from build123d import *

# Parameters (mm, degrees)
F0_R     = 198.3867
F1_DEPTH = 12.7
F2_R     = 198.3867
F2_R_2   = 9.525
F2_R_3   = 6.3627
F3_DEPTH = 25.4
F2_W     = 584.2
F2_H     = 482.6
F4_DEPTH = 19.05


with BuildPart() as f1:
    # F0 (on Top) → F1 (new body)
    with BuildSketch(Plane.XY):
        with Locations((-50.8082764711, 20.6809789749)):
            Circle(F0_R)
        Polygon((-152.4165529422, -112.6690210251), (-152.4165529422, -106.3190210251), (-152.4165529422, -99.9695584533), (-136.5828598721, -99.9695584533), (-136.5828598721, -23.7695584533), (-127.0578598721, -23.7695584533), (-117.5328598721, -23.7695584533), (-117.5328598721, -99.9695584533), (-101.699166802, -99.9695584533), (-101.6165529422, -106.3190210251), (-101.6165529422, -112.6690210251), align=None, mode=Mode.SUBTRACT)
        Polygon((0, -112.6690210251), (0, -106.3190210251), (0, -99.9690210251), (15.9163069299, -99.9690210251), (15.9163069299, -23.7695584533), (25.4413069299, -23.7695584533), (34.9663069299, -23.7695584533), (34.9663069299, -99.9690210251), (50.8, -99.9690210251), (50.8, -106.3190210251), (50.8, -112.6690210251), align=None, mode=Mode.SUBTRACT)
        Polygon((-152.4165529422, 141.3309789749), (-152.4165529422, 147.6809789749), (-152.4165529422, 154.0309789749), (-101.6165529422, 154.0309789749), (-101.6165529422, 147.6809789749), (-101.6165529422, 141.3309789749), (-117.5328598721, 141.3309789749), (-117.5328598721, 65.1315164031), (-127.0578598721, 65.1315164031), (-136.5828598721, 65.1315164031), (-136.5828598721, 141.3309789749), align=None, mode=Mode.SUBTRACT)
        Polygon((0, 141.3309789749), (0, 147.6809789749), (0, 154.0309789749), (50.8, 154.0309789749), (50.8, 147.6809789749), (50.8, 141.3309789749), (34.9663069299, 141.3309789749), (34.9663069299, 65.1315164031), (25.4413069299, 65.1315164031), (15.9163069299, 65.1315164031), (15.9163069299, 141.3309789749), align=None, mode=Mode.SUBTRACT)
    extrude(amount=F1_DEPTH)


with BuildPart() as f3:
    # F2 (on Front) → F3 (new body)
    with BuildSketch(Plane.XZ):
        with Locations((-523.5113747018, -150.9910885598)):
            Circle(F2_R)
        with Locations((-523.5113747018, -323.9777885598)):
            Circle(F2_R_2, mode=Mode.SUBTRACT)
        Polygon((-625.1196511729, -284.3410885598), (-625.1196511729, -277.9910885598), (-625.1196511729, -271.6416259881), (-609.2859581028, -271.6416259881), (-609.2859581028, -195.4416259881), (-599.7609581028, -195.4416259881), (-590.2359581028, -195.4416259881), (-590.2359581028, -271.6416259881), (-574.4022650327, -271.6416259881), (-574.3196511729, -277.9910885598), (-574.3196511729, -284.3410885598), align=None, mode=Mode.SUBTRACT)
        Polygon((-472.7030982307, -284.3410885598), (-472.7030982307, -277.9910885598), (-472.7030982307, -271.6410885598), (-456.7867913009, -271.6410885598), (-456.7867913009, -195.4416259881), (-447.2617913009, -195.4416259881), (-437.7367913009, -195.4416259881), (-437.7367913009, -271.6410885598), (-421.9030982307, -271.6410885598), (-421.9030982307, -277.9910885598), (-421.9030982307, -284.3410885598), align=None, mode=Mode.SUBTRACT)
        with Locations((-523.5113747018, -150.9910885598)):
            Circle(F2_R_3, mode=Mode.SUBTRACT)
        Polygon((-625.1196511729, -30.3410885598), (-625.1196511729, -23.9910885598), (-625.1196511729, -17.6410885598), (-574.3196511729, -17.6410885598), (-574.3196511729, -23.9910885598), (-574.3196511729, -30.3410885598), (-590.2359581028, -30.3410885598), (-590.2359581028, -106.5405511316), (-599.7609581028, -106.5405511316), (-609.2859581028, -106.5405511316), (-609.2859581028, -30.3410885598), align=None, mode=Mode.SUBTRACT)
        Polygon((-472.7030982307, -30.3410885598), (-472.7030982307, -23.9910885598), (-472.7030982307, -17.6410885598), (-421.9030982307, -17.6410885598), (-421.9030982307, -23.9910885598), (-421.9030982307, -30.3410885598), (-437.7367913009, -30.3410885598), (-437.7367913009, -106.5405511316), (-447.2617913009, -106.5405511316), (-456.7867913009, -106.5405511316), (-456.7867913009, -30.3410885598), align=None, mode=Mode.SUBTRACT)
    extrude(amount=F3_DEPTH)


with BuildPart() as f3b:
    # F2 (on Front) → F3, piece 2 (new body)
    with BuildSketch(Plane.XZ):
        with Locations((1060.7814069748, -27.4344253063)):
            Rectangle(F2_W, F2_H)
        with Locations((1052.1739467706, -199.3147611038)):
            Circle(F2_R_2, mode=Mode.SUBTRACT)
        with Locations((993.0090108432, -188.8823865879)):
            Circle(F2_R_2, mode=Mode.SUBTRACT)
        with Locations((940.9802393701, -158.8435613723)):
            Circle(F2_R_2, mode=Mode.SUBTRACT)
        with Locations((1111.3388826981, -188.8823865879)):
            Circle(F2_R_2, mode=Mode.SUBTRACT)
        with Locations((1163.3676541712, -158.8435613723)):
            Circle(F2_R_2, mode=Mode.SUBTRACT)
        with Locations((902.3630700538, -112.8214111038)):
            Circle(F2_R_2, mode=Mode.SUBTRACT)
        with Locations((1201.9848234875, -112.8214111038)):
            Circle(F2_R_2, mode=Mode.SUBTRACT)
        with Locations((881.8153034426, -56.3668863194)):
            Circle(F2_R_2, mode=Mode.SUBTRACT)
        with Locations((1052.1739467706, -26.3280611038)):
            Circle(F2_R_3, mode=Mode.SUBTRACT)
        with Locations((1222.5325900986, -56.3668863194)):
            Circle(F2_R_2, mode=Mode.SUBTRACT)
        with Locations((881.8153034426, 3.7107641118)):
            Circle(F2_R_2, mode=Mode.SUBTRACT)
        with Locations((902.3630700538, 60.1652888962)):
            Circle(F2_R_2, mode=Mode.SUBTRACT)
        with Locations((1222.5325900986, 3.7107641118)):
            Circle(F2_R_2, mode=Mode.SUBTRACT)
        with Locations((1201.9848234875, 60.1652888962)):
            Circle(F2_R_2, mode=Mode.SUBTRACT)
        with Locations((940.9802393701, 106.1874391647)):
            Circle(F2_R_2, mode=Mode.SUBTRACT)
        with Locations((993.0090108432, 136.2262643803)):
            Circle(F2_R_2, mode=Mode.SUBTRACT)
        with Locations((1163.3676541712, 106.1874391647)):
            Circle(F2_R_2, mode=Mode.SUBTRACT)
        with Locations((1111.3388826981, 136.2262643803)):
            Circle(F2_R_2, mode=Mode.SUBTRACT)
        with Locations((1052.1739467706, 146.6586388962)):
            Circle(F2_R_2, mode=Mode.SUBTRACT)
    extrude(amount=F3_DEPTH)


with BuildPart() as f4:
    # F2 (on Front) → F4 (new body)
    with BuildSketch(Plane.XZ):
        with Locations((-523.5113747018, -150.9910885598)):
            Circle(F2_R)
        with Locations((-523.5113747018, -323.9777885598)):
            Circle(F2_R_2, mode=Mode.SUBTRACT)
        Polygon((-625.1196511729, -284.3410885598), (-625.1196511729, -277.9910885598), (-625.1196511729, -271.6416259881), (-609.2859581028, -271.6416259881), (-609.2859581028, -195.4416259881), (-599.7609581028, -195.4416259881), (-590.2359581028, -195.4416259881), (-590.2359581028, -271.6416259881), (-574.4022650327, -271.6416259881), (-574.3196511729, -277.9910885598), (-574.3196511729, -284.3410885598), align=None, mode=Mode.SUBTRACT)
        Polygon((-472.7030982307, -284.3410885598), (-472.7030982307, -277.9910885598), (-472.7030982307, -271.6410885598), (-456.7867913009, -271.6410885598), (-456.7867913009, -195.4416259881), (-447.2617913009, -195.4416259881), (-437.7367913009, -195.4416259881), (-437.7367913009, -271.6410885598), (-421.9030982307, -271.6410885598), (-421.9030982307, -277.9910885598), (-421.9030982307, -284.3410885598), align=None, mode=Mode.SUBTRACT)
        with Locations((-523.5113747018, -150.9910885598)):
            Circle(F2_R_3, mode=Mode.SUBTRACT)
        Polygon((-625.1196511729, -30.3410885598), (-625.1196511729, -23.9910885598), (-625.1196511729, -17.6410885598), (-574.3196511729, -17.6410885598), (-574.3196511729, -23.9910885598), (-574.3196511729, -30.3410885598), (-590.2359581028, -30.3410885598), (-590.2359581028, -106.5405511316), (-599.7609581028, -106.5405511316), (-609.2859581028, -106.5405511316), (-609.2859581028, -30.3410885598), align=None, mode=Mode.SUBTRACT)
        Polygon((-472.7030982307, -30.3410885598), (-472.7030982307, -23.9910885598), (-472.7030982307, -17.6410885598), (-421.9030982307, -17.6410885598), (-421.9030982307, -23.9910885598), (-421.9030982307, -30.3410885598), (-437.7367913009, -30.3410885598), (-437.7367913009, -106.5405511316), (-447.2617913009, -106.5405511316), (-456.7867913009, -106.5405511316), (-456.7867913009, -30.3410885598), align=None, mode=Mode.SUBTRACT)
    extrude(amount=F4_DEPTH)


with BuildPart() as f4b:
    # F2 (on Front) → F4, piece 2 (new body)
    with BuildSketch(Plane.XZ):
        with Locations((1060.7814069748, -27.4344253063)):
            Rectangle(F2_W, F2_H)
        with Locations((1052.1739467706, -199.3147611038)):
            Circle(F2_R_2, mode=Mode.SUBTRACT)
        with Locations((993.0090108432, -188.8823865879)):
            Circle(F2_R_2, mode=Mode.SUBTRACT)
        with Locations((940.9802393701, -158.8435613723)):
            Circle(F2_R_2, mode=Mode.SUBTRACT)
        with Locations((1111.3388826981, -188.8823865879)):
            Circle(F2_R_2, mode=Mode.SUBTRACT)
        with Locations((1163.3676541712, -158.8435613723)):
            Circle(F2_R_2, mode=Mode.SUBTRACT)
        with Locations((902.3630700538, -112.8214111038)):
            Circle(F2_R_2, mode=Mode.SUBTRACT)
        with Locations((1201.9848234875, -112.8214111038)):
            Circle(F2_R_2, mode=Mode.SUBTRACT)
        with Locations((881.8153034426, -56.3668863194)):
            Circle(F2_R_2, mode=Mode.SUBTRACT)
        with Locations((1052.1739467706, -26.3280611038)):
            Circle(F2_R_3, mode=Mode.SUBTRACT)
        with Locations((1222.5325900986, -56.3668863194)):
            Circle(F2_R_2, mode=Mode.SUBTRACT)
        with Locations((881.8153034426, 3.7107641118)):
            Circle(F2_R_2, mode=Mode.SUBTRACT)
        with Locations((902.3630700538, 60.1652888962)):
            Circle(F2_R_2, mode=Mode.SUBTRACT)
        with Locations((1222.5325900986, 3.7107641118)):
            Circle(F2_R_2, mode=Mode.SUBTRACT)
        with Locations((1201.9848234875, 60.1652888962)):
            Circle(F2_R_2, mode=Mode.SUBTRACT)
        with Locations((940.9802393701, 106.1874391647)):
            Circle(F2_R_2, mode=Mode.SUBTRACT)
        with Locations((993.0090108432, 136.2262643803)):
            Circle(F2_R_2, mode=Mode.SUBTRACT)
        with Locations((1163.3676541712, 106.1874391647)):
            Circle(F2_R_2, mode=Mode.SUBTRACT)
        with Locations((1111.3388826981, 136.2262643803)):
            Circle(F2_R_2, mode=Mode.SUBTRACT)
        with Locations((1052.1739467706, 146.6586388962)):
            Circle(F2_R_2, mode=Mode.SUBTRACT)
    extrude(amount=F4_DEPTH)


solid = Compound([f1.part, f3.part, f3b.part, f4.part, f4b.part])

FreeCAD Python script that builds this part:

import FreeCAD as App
import Part
import Sketcher
from FreeCAD import Vector
Q = App.Units.Quantity

doc = App.newDocument("Part")
body = doc.addObject("PartDesign::Body", "Body")

sketch1 = body.newObject("Sketcher::SketchObject", "Sketch")
sketch1.AttachmentSupport = (doc.getObject("XY_Plane"), [""])
sketch1.MapMode = "FlatFace"
sketch1.addGeometry([
    Part.Circle(Vector(-50.808276, 20.680979, 0), Vector(0, 0, 1), 198.3867),
    Part.LineSegment(Vector(-101.616553, -112.669021, 0), Vector(-152.416553, -112.669021, 0)),
    Part.LineSegment(Vector(-152.416553, -112.669021, 0), Vector(-152.416553, -99.969558, 0)),
    Part.LineSegment(Vector(-152.416553, -99.969558, 0), Vector(-136.58286, -99.969558, 0)),
    Part.LineSegment(Vector(-136.58286, -99.969558, 0), Vector(-136.58286, -23.769558, 0)),
    Part.LineSegment(Vector(-136.58286, -23.769558, 0), Vector(-117.53286, -23.769558, 0)),
    Part.LineSegment(Vector(-117.53286, -23.769558, 0), Vector(-117.53286, -99.969558, 0)),
    Part.LineSegment(Vector(-117.53286, -99.969558, 0), Vector(-101.699167, -99.969558, 0)),
    Part.LineSegment(Vector(-101.699167, -99.969558, 0), Vector(-101.616553, -106.319021, 0)),
    Part.LineSegment(Vector(-101.616553, -106.319021, 0), Vector(-101.616553, -112.669021, 0)),
    Part.LineSegment(Vector(50.8, -112.669021, 0), Vector(0, -112.669021, 0)),
    Part.LineSegment(Vector(0, -112.669021, 0), Vector(0, -99.969021, 0)),
    Part.LineSegment(Vector(0, -99.969021, 0), Vector(15.916307, -99.969021, 0)),
    Part.LineSegment(Vector(15.916307, -99.969021, 0), Vector(15.916307, -23.769558, 0)),
    Part.LineSegment(Vector(15.916307, -23.769558, 0), Vector(34.966307, -23.769558, 0)),
    Part.LineSegment(Vector(34.966307, -23.769558, 0), Vector(34.966307, -99.969021, 0)),
    Part.LineSegment(Vector(34.966307, -99.969021, 0), Vector(50.8, -99.969021, 0)),
    Part.LineSegment(Vector(50.8, -99.969021, 0), Vector(50.8, -112.669021, 0)),
    Part.LineSegment(Vector(-136.58286, 141.330979, 0), Vector(-152.416553, 141.330979, 0)),
    Part.LineSegment(Vector(-152.416553, 141.330979, 0), Vector(-152.416553, 154.030979, 0)),
    Part.LineSegment(Vector(-152.416553, 154.030979, 0), Vector(-101.616553, 154.030979, 0)),
    Part.LineSegment(Vector(-101.616553, 154.030979, 0), Vector(-101.616553, 141.330979, 0)),
    Part.LineSegment(Vector(-101.616553, 141.330979, 0), Vector(-117.53286, 141.330979, 0)),
    Part.LineSegment(Vector(-117.53286, 141.330979, 0), Vector(-117.53286, 65.131516, 0)),
    Part.LineSegment(Vector(-117.53286, 65.131516, 0), Vector(-136.58286, 65.131516, 0)),
    Part.LineSegment(Vector(-136.58286, 65.131516, 0), Vector(-136.58286, 141.330979, 0)),
    Part.LineSegment(Vector(15.916307, 141.330979, 0), Vector(0, 141.330979, 0)),
    Part.LineSegment(Vector(0, 141.330979, 0), Vector(0, 154.030979, 0)),
    Part.LineSegment(Vector(0, 154.030979, 0), Vector(50.8, 154.030979, 0)),
    Part.LineSegment(Vector(50.8, 154.030979, 0), Vector(50.8, 141.330979, 0)),
    Part.LineSegment(Vector(50.8, 141.330979, 0), Vector(34.966307, 141.330979, 0)),
    Part.LineSegment(Vector(34.966307, 141.330979, 0), Vector(34.966307, 65.131516, 0)),
    Part.LineSegment(Vector(34.966307, 65.131516, 0), Vector(15.916307, 65.131516, 0)),
    Part.LineSegment(Vector(15.916307, 65.131516, 0), Vector(15.916307, 141.330979, 0)),
], False)
sketch1.addConstraint([
    Sketcher.Constraint("Coincident", 1, 2, 2, 1),
    Sketcher.Constraint("Coincident", 2, 2, 3, 1),
    Sketcher.Constraint("Coincident", 3, 2, 4, 1),
    Sketcher.Constraint("Coincident", 4, 2, 5, 1),
    Sketcher.Constraint("Coincident", 5, 2, 6, 1),
    Sketcher.Constraint("Coincident", 6, 2, 7, 1),
    Sketcher.Constraint("Coincident", 7, 2, 8, 1),
    Sketcher.Constraint("Coincident", 8, 2, 9, 1),
    Sketcher.Constraint("Coincident", 9, 2, 1, 1),
    Sketcher.Constraint("Coincident", 10, 2, 11, 1),
    Sketcher.Constraint("Coincident", 11, 2, 12, 1),
    Sketcher.Constraint("Coincident", 12, 2, 13, 1),
    Sketcher.Constraint("Coincident", 13, 2, 14, 1),
    Sketcher.Constraint("Coincident", 14, 2, 15, 1),
    Sketcher.Constraint("Coincident", 15, 2, 16, 1),
    Sketcher.Constraint("Coincident", 16, 2, 17, 1),
    Sketcher.Constraint("Coincident", 17, 2, 10, 1),
    Sketcher.Constraint("Coincident", 18, 2, 19, 1),
    Sketcher.Constraint("Coincident", 19, 2, 20, 1),
    Sketcher.Constraint("Coincident", 20, 2, 21, 1),
    Sketcher.Constraint("Coincident", 21, 2, 22, 1),
    Sketcher.Constraint("Coincident", 22, 2, 23, 1),
    Sketcher.Constraint("Coincident", 23, 2, 24, 1),
    Sketcher.Constraint("Coincident", 24, 2, 25, 1),
    Sketcher.Constraint("Coincident", 25, 2, 18, 1),
    Sketcher.Constraint("Coincident", 26, 2, 27, 1),
    Sketcher.Constraint("Coincident", 27, 2, 28, 1),
    Sketcher.Constraint("Coincident", 28, 2, 29, 1),
    Sketcher.Constraint("Coincident", 29, 2, 30, 1),
    Sketcher.Constraint("Coincident", 30, 2, 31, 1),
    Sketcher.Constraint("Coincident", 31, 2, 32, 1),
    Sketcher.Constraint("Coincident", 32, 2, 33, 1),
    Sketcher.Constraint("Coincident", 33, 2, 26, 1),
    Sketcher.Constraint("Horizontal", 1),
    Sketcher.Constraint("Vertical", 2),
    Sketcher.Constraint("Horizontal", 3),
    Sketcher.Constraint("Vertical", 4),
    Sketcher.Constraint("Horizontal", 5),
    Sketcher.Constraint("Vertical", 6),
    Sketcher.Constraint("Horizontal", 7),
    Sketcher.Constraint("Vertical", 9),
    Sketcher.Constraint("Horizontal", 10),
    Sketcher.Constraint("Vertical", 11),
    Sketcher.Constraint("Horizontal", 12),
    Sketcher.Constraint("Vertical", 13),
    Sketcher.Constraint("Horizontal", 14),
    Sketcher.Constraint("Vertical", 15),
    Sketcher.Constraint("Horizontal", 16),
    Sketcher.Constraint("Vertical", 17),
    Sketcher.Constraint("Horizontal", 18),
    Sketcher.Constraint("Vertical", 19),
    Sketcher.Constraint("Horizontal", 20),
    Sketcher.Constraint("Vertical", 21),
    Sketcher.Constraint("Horizontal", 22),
    Sketcher.Constraint("Vertical", 23),
    Sketcher.Constraint("Horizontal", 24),
    Sketcher.Constraint("Vertical", 25),
    Sketcher.Constraint("Horizontal", 26),
    Sketcher.Constraint("Vertical", 27),
    Sketcher.Constraint("Horizontal", 28),
    Sketcher.Constraint("Vertical", 29),
    Sketcher.Constraint("Horizontal", 30),
    Sketcher.Constraint("Vertical", 31),
    Sketcher.Constraint("Horizontal", 32),
    Sketcher.Constraint("Vertical", 33),
    Sketcher.Constraint("PointOnObject", 10, 2, -2),
    Sketcher.Constraint("PointOnObject", 26, 2, -2),
    Sketcher.Constraint("Horizontal", 3, 2, 6, 2),
    Sketcher.Constraint("Horizontal", 9, 2, 10, 2),
    Sketcher.Constraint("Horizontal", 5, 2, 13, 2),
    Sketcher.Constraint("Horizontal", 12, 2, 15, 2),
    Sketcher.Constraint("Horizontal", 18, 2, 21, 2),
    Sketcher.Constraint("Horizontal", 25, 2, 26, 2),
    Sketcher.Constraint("Horizontal", 20, 2, 27, 2),
    Sketcher.Constraint("Horizontal", 26, 2, 29, 2),
    Sketcher.Constraint("Horizontal", 24, 2, 31, 2),
    Sketcher.Constraint("Vertical", 2, 2, 18, 2),
    Sketcher.Constraint("Vertical", 9, 2, 20, 2),
    Sketcher.Constraint("Vertical", 6, 2, 22, 2),
    Sketcher.Constraint("Vertical", 4, 2, 24, 2),
    Sketcher.Constraint("Vertical", 17, 2, 28, 2),
    Sketcher.Constraint("Vertical", 15, 2, 30, 2),
    Sketcher.Constraint("Vertical", 13, 2, 32, 2),
    Sketcher.Constraint("Equal", 3, 7),
    Sketcher.Constraint("Equal", 1, 10),
    Sketcher.Constraint("Equal", 5, 14),
    Sketcher.Constraint("Equal", 7, 16),
    Sketcher.Constraint("Equal", 17, 19),
    Sketcher.Constraint("Equal", 15, 23),
    Sketcher.Constraint("DistanceX", 1, 2, 1, 1, Q("2 in")),
    Sketcher.Constraint("DistanceY", 4, 1, 4, 2, Q("3 in")),
    Sketcher.Constraint("Diameter", 0, Q("15.621 in")),
    Sketcher.Constraint("DistanceY", 11, 1, 11, 2, Q("0.5 in")),
    Sketcher.Constraint("DistanceX", 5, 1, 5, 2, Q("0.75 in")),
    Sketcher.Constraint("DistanceY", 9, 2, 9, 1, Q("0.25 in")),
    Sketcher.Constraint("Distance", 8, Q("0.25 in")),
    Sketcher.Constraint("DistanceY", 1, 2, 0, 3, Q("5.25 in")),
    Sketcher.Constraint("DistanceY", 0, 3, 18, 2, Q("4.75 in")),
    Sketcher.Constraint("DistanceX", 3, 1, 3, 2, 15.833693),
    Sketcher.Constraint("DistanceY", -1, 1, 0, 3, 20.680979),
    Sketcher.Constraint("DistanceX", 3, 2, -1, 1, 136.58286),
    Sketcher.Constraint("DistanceX", 0, 3, -1, 1, 50.808276),
])
pad1 = body.newObject("PartDesign::Pad", "Pad")
pad1.Profile = sketch1
pad1.Length = Q("0.5 in")
body2 = doc.addObject("PartDesign::Body", "Body001")

sketch2 = body2.newObject("Sketcher::SketchObject", "Sketch001")
sketch2.AttachmentSupport = (doc.getObject("XZ_Plane001"), [""])
sketch2.MapMode = "FlatFace"
sketch2.addGeometry([
    Part.Circle(Vector(-523.511375, -150.991089, 0), Vector(0, 0, 1), 198.3867),
    Part.Circle(Vector(-523.511375, -323.977789, 0), Vector(0, 0, 1), 9.525),
    Part.LineSegment(Vector(-574.319651, -284.341089, 0), Vector(-625.119651, -284.341089, 0)),
    Part.LineSegment(Vector(-625.119651, -284.341089, 0), Vector(-625.119651, -271.641626, 0)),
    Part.LineSegment(Vector(-625.119651, -271.641626, 0), Vector(-609.285958, -271.641626, 0)),
    Part.LineSegment(Vector(-609.285958, -271.641626, 0), Vector(-609.285958, -195.441626, 0)),
    Part.LineSegment(Vector(-609.285958, -195.441626, 0), Vector(-590.235958, -195.441626, 0)),
    Part.LineSegment(Vector(-590.235958, -195.441626, 0), Vector(-590.235958, -271.641626, 0)),
    Part.LineSegment(Vector(-590.235958, -271.641626, 0), Vector(-574.402265, -271.641626, 0)),
    Part.LineSegment(Vector(-574.402265, -271.641626, 0), Vector(-574.319651, -277.991089, 0)),
    Part.LineSegment(Vector(-574.319651, -277.991089, 0), Vector(-574.319651, -284.341089, 0)),
    Part.LineSegment(Vector(-421.903098, -284.341089, 0), Vector(-472.703098, -284.341089, 0)),
    Part.LineSegment(Vector(-472.703098, -284.341089, 0), Vector(-472.703098, -271.641089, 0)),
    Part.LineSegment(Vector(-472.703098, -271.641089, 0), Vector(-456.786791, -271.641089, 0)),
    Part.LineSegment(Vector(-456.786791, -271.641089, 0), Vector(-456.786791, -195.441626, 0)),
    Part.LineSegment(Vector(-456.786791, -195.441626, 0), Vector(-437.736791, -195.441626, 0)),
    Part.LineSegment(Vector(-437.736791, -195.441626, 0), Vector(-437.736791, -271.641089, 0)),
    Part.LineSegment(Vector(-437.736791, -271.641089, 0), Vector(-421.903098, -271.641089, 0)),
    Part.LineSegment(Vector(-421.903098, -271.641089, 0), Vector(-421.903098, -284.341089, 0)),
    Part.Circle(Vector(-523.511375, -150.991089, 0), Vector(0, 0, 1), 6.3627),
    Part.LineSegment(Vector(-609.285958, -30.341089, 0), Vector(-625.119651, -30.341089, 0)),
    Part.LineSegment(Vector(-625.119651, -30.341089, 0), Vector(-625.119651, -17.641089, 0)),
    Part.LineSegment(Vector(-625.119651, -17.641089, 0), Vector(-574.319651, -17.641089, 0)),
    Part.LineSegment(Vector(-574.319651, -17.641089, 0), Vector(-574.319651, -30.341089, 0)),
    Part.LineSegment(Vector(-574.319651, -30.341089, 0), Vector(-590.235958, -30.341089, 0)),
    Part.LineSegment(Vector(-590.235958, -30.341089, 0), Vector(-590.235958, -106.540551, 0)),
    Part.LineSegment(Vector(-590.235958, -106.540551, 0), Vector(-609.285958, -106.540551, 0)),
    Part.LineSegment(Vector(-609.285958, -106.540551, 0), Vector(-609.285958, -30.341089, 0)),
    Part.LineSegment(Vector(-456.786791, -30.341089, 0), Vector(-472.703098, -30.341089, 0)),
    Part.LineSegment(Vector(-472.703098, -30.341089, 0), Vector(-472.703098, -17.641089, 0)),
    Part.LineSegment(Vector(-472.703098, -17.641089, 0), Vector(-421.903098, -17.641089, 0)),
    Part.LineSegment(Vector(-421.903098, -17.641089, 0), Vector(-421.903098, -30.341089, 0)),
    Part.LineSegment(Vector(-421.903098, -30.341089, 0), Vector(-437.736791, -30.341089, 0)),
    Part.LineSegment(Vector(-437.736791, -30.341089, 0), Vector(-437.736791, -106.540551, 0)),
    Part.LineSegment(Vector(-437.736791, -106.540551, 0), Vector(-456.786791, -106.540551, 0)),
    Part.LineSegment(Vector(-456.786791, -106.540551, 0), Vector(-456.786791, -30.341089, 0)),
], False)
sketch2.addConstraint([
    Sketcher.Constraint("Coincident", 2, 2, 3, 1),
    Sketcher.Constraint("Coincident", 3, 2, 4, 1),
    Sketcher.Constraint("Coincident", 4, 2, 5, 1),
    Sketcher.Constraint("Coincident", 5, 2, 6, 1),
    Sketcher.Constraint("Coincident", 6, 2, 7, 1),
    Sketcher.Constraint("Coincident", 7, 2, 8, 1),
    Sketcher.Constraint("Coincident", 8, 2, 9, 1),
    Sketcher.Constraint("Coincident", 9, 2, 10, 1),
    Sketcher.Constraint("Coincident", 10, 2, 2, 1),
    Sketcher.Constraint("Coincident", 11, 2, 12, 1),
    Sketcher.Constraint("Coincident", 12, 2, 13, 1),
    Sketcher.Constraint("Coincident", 13, 2, 14, 1),
    Sketcher.Constraint("Coincident", 14, 2, 15, 1),
    Sketcher.Constraint("Coincident", 15, 2, 16, 1),
    Sketcher.Constraint("Coincident", 16, 2, 17, 1),
    Sketcher.Constraint("Coincident", 17, 2, 18, 1),
    Sketcher.Constraint("Coincident", 18, 2, 11, 1),
    Sketcher.Constraint("Coincident", 20, 2, 21, 1),
    Sketcher.Constraint("Coincident", 21, 2, 22, 1),
    Sketcher.Constraint("Coincident", 22, 2, 23, 1),
    Sketcher.Constraint("Coincident", 23, 2, 24, 1),
    Sketcher.Constraint("Coincident", 24, 2, 25, 1),
    Sketcher.Constraint("Coincident", 25, 2, 26, 1),
    Sketcher.Constraint("Coincident", 26, 2, 27, 1),
    Sketcher.Constraint("Coincident", 27, 2, 20, 1),
    Sketcher.Constraint("Coincident", 28, 2, 29, 1),
    Sketcher.Constraint("Coincident", 29, 2, 30, 1),
    Sketcher.Constraint("Coincident", 30, 2, 31, 1),
    Sketcher.Constraint("Coincident", 31, 2, 32, 1),
    Sketcher.Constraint("Coincident", 32, 2, 33, 1),
    Sketcher.Constraint("Coincident", 33, 2, 34, 1),
    Sketcher.Constraint("Coincident", 34, 2, 35, 1),
    Sketcher.Constraint("Coincident", 35, 2, 28, 1),
    Sketcher.Constraint("Horizontal", 2),
    Sketcher.Constraint("Vertical", 3),
    Sketcher.Constraint("Horizontal", 4),
    Sketcher.Constraint("Vertical", 5),
    Sketcher.Constraint("Horizontal", 6),
    Sketcher.Constraint("Vertical", 7),
    Sketcher.Constraint("Horizontal", 8),
    Sketcher.Constraint("Vertical", 10),
    Sketcher.Constraint("Horizontal", 11),
    Sketcher.Constraint("Vertical", 12),
    Sketcher.Constraint("Horizontal", 13),
    Sketcher.Constraint("Vertical", 14),
    Sketcher.Constraint("Horizontal", 15),
    Sketcher.Constraint("Vertical", 16),
    Sketcher.Constraint("Horizontal", 17),
    Sketcher.Constraint("Vertical", 18),
    Sketcher.Constraint("Horizontal", 20),
    Sketcher.Constraint("Vertical", 21),
    Sketcher.Constraint("Horizontal", 22),
    Sketcher.Constraint("Vertical", 23),
    Sketcher.Constraint("Horizontal", 24),
    Sketcher.Constraint("Vertical", 25),
    Sketcher.Constraint("Horizontal", 26),
    Sketcher.Constraint("Vertical", 27),
    Sketcher.Constraint("Horizontal", 28),
    Sketcher.Constraint("Vertical", 29),
    Sketcher.Constraint("Horizontal", 30),
    Sketcher.Constraint("Vertical", 31),
    Sketcher.Constraint("Horizontal", 32),
    Sketcher.Constraint("Vertical", 33),
    Sketcher.Constraint("Horizontal", 34),
    Sketcher.Constraint("Vertical", 35),
    Sketcher.Constraint("Coincident", 19, 3, 0, 3),
    Sketcher.Constraint("Horizontal", 4, 2, 7, 2),
    Sketcher.Constraint("Horizontal", 10, 2, 11, 2),
    Sketcher.Constraint("Horizontal", 6, 2, 14, 2),
    Sketcher.Constraint("Horizontal", 13, 2, 16, 2),
    Sketcher.Constraint("Horizontal", 20, 2, 23, 2),
    Sketcher.Constraint("Horizontal", 27, 2, 28, 2),
    Sketcher.Constraint("Horizontal", 22, 2, 29, 2),
    Sketcher.Constraint("Horizontal", 28, 2, 31, 2),
    Sketcher.Constraint("Horizontal", 26, 2, 33, 2),
    Sketcher.Constraint("Vertical", 0, 3, 1, 3),
    Sketcher.Constraint("Vertical", 3, 2, 20, 2),
    Sketcher.Constraint("Vertical", 10, 2, 22, 2),
    Sketcher.Constraint("Vertical", 7, 2, 24, 2),
    Sketcher.Constraint("Vertical", 5, 2, 26, 2),
    Sketcher.Constraint("Vertical", 12, 2, 28, 2),
    Sketcher.Constraint("Vertical", 18, 2, 30, 2),
    Sketcher.Constraint("Vertical", 16, 2, 32, 2),
    Sketcher.Constraint("Vertical", 14, 2, 34, 2),
    Sketcher.Constraint("Equal", 4, 8),
    Sketcher.Constraint("Equal", 2, 11),
    Sketcher.Constraint("Equal", 6, 15),
    Sketcher.Constraint("Equal", 8, 17),
    Sketcher.Constraint("Equal", 18, 21),
    Sketcher.Constraint("Equal", 16, 25),
    Sketcher.Constraint("Diameter", 1, Q("0.75 in")),
    Sketcher.Constraint("DistanceX", 2, 2, 2, 1, Q("2 in")),
    Sketcher.Constraint("DistanceY", 5, 1, 5, 2, Q("3 in")),
    Sketcher.Constraint("Diameter", 0, Q("15.621 in")),
    Sketcher.Constraint("Diameter", 19, Q("0.501 in")),
    Sketcher.Constraint("DistanceY", 12, 1, 12, 2, Q("0.5 in")),
    Sketcher.Constraint("DistanceX", 6, 1, 6, 2, Q("0.75 in")),
    Sketcher.Constraint("DistanceY", 10, 2, 10, 1, Q("0.25 in")),
    Sketcher.Constraint("Distance", 9, Q("0.25 in")),
    Sketcher.Constraint("DistanceY", 2, 2, 0, 3, Q("5.25 in")),
    Sketcher.Constraint("DistanceY", 0, 3, 20, 2, Q("4.75 in")),
    Sketcher.Constraint("DistanceY", 1, 3, 0, 3, Q("6.8105 in")),
    Sketcher.Constraint("DistanceX", 11, 2, -1, 1, 472.703098),
    Sketcher.Constraint("DistanceX", 4, 1, 4, 2, 15.833693),
    Sketcher.Constraint("DistanceY", 0, 3, -1, 1, 150.991089),
    Sketcher.Constraint("DistanceX", 2, 2, -1, 1, 625.119651),
    Sketcher.Constraint("DistanceX", 8, 2, 1, 3, 50.89089),
])
pad2 = body2.newObject("PartDesign::Pad", "Pad001")
pad2.Profile = sketch2
pad2.Length = Q("1 in")
body3 = doc.addObject("PartDesign::Body", "Body002")

sketch3 = body3.newObject("Sketcher::SketchObject", "Sketch002")
sketch3.AttachmentSupport = (doc.getObject("XZ_Plane002"), [""])
sketch3.MapMode = "FlatFace"
sketch3.addGeometry([
    Part.LineSegment(Vector(768.681407, 213.865575, 0), Vector(768.681407, -268.734425, 0)),
    Part.LineSegment(Vector(768.681407, -268.734425, 0), Vector(1352.881407, -268.734425, 0)),
    Part.LineSegment(Vector(1352.881407, -268.734425, 0), Vector(1352.881407, 213.865575, 0)),
    Part.LineSegment(Vector(1352.881407, 213.865575, 0), Vector(768.681407, 213.865575, 0)),
    Part.Circle(Vector(940.980239, -158.843561, 0), Vector(0, 0, 1), 9.525),
    Part.Circle(Vector(993.009011, -188.882387, 0), Vector(0, 0, 1), 9.525),
    Part.Circle(Vector(902.36307, -112.821411, 0), Vector(0, 0, 1), 9.525),
    Part.Circle(Vector(881.815303, -56.366886, 0), Vector(0, 0, 1), 9.525),
    Part.Circle(Vector(1052.173947, -199.314761, 0), Vector(0, 0, 1), 9.525),
    Part.Circle(Vector(1111.338883, -188.882387, 0), Vector(0, 0, 1), 9.525),
    Part.Circle(Vector(1163.367654, -158.843561, 0), Vector(0, 0, 1), 9.525),
    Part.Circle(Vector(1201.984823, -112.821411, 0), Vector(0, 0, 1), 9.525),
    Part.Circle(Vector(1222.53259, -56.366886, 0), Vector(0, 0, 1), 9.525),
    Part.Circle(Vector(881.815303, 3.710764, 0), Vector(0, 0, 1), 9.525),
    Part.Circle(Vector(902.36307, 60.165289, 0), Vector(0, 0, 1), 9.525),
    Part.Circle(Vector(940.980239, 106.187439, 0), Vector(0, 0, 1), 9.525),
    Part.Circle(Vector(993.009011, 136.226264, 0), Vector(0, 0, 1), 9.525),
    Part.Circle(Vector(1052.173947, -26.328061, 0), Vector(0, 0, 1), 6.3627),
    Part.Circle(Vector(1222.53259, 3.710764, 0), Vector(0, 0, 1), 9.525),
    Part.Circle(Vector(1201.984823, 60.165289, 0), Vector(0, 0, 1), 9.525),
    Part.Circle(Vector(1052.173947, 146.658639, 0), Vector(0, 0, 1), 9.525),
    Part.Circle(Vector(1111.338883, 136.226264, 0), Vector(0, 0, 1), 9.525),
    Part.Circle(Vector(1163.367654, 106.187439, 0), Vector(0, 0, 1), 9.525),
], False)
sketch3.addConstraint([
    Sketcher.Constraint("Coincident", 0, 2, 1, 1),
    Sketcher.Constraint("Coincident", 1, 2, 2, 1),
    Sketcher.Constraint("Coincident", 2, 2, 3, 1),
    Sketcher.Constraint("Coincident", 3, 2, 0, 1),
    Sketcher.Constraint("Vertical", 0),
    Sketcher.Constraint("Horizontal", 1),
    Sketcher.Constraint("Vertical", 2),
    Sketcher.Constraint("Horizontal", 3),
    Sketcher.Constraint("Equal", 4, 5),
    Sketcher.Constraint("Equal", 5, 6),
    Sketcher.Constraint("Equal", 6, 7),
    Sketcher.Constraint("Equal", 7, 8),
    Sketcher.Constraint("Equal", 8, 9),
    Sketcher.Constraint("Equal", 9, 10),
    Sketcher.Constraint("Equal", 10, 11),
    Sketcher.Constraint("Equal", 11, 12),
    Sketcher.Constraint("Equal", 12, 13),
    Sketcher.Constraint("Equal", 13, 14),
    Sketcher.Constraint("Equal", 14, 15),
    Sketcher.Constraint("Equal", 15, 16),
    Sketcher.Constraint("Equal", 16, 18),
    Sketcher.Constraint("Equal", 18, 19),
    Sketcher.Constraint("Equal", 19, 20),
    Sketcher.Constraint("Equal", 20, 21),
    Sketcher.Constraint("Equal", 21, 22),
    Sketcher.Constraint("Horizontal", 5, 3, 9, 3),
    Sketcher.Constraint("Horizontal", 4, 3, 10, 3),
    Sketcher.Constraint("Horizontal", 6, 3, 11, 3),
    Sketcher.Constraint("Horizontal", 7, 3, 12, 3),
    Sketcher.Constraint("Horizontal", 13, 3, 18, 3),
    Sketcher.Constraint("Horizontal", 14, 3, 19, 3),
    Sketcher.Constraint("Horizontal", 16, 3, 21, 3),
    Sketcher.Constraint("Horizontal", 15, 3, 22, 3),
    Sketcher.Constraint("Vertical", 7, 3, 13, 3),
    Sketcher.Constraint("Vertical", 6, 3, 14, 3),
    Sketcher.Constraint("Vertical", 4, 3, 15, 3),
    Sketcher.Constraint("Vertical", 5, 3, 16, 3),
    Sketcher.Constraint("Vertical", 8, 3, 17, 3),
    Sketcher.Constraint("Vertical", 12, 3, 18, 3),
    Sketcher.Constraint("Vertical", 11, 3, 19, 3),
    Sketcher.Constraint("Vertical", 17, 3, 20, 3),
    Sketcher.Constraint("Vertical", 9, 3, 21, 3),
    Sketcher.Constraint("Vertical", 10, 3, 22, 3),
    Sketcher.Constraint("Diameter", 4, Q("0.75 in")),
    Sketcher.Constraint("DistanceX", 1, 1, 1, 2, Q("23 in")),
    Sketcher.Constraint("DistanceY", 0, 2, 0, 1, Q("19 in")),
    Sketcher.Constraint("Diameter", 17, Q("0.501 in")),
    Sketcher.Constraint("DistanceY", 6, 3, 14, 3, Q("6.8105 in")),
    Sketcher.Constraint("DistanceY", 17, 3, 20, 3, Q("6.8105 in")),
    Sketcher.Constraint("DistanceY", 5, 3, 7, 3, 132.5155),
    Sketcher.Constraint("DistanceY", 8, 3, 4, 3, 40.4712),
    Sketcher.Constraint("DistanceY", 4, 3, 15, 3, 265.031001),
    Sketcher.Constraint("DistanceY", 13, 3, 16, 3, 132.5155),
    Sketcher.Constraint("DistanceY", 10, 3, 17, 3, 132.5155),
    Sketcher.Constraint("DistanceX", -1, 1, 4, 3, 940.980239),
    Sketcher.Constraint("DistanceY", 4, 3, -1, 1, 158.843561),
    Sketcher.Constraint("DistanceX", -1, 1, 5, 3, 993.009011),
    Sketcher.Constraint("DistanceX", -1, 1, 6, 3, 902.36307),
    Sketcher.Constraint("DistanceY", 6, 3, -1, 1, 112.821411),
    Sketcher.Constraint("DistanceX", -1, 1, 12, 3, 1222.53259),
    Sketcher.Constraint("DistanceX", 5, 3, 9, 3, 118.329872),
    Sketcher.Constraint("DistanceX", 7, 3, 9, 3, 229.523579),
    Sketcher.Constraint("DistanceX", 9, 3, 10, 3, 52.028771),
    Sketcher.Constraint("DistanceX", 10, 3, 11, 3, 38.617169),
    Sketcher.Constraint("DistanceY", 7, 3, 13, 3, 60.07765),
    Sketcher.Constraint("DistanceY", 0, 2, 5, 3, 79.852039),
    Sketcher.Constraint("DistanceX", 0, 2, 8, 3, 283.49254),
    Sketcher.Constraint("DistanceY", 5, 3, -1, 1, 188.882387),
    Sketcher.Constraint("DistanceX", -1, 1, 8, 3, 1052.173947),
])
pad3 = body3.newObject("PartDesign::Pad", "Pad002")
pad3.Profile = sketch3
pad3.Length = Q("1 in")
body4 = doc.addObject("PartDesign::Body", "Body003")

sketch4 = body4.newObject("Sketcher::SketchObject", "Sketch003")
sketch4.AttachmentSupport = (doc.getObject("XZ_Plane003"), [""])
sketch4.MapMode = "FlatFace"
sketch4.addGeometry([
    Part.Circle(Vector(-523.511375, -150.991089, 0), Vector(0, 0, 1), 198.3867),
    Part.Circle(Vector(-523.511375, -323.977789, 0), Vector(0, 0, 1), 9.525),
    Part.LineSegment(Vector(-574.319651, -284.341089, 0), Vector(-625.119651, -284.341089, 0)),
    Part.LineSegment(Vector(-625.119651, -284.341089, 0), Vector(-625.119651, -271.641626, 0)),
    Part.LineSegment(Vector(-625.119651, -271.641626, 0), Vector(-609.285958, -271.641626, 0)),
    Part.LineSegment(Vector(-609.285958, -271.641626, 0), Vector(-609.285958, -195.441626, 0)),
    Part.LineSegment(Vector(-609.285958, -195.441626, 0), Vector(-590.235958, -195.441626, 0)),
    Part.LineSegment(Vector(-590.235958, -195.441626, 0), Vector(-590.235958, -271.641626, 0)),
    Part.LineSegment(Vector(-590.235958, -271.641626, 0), Vector(-574.402265, -271.641626, 0)),
    Part.LineSegment(Vector(-574.402265, -271.641626, 0), Vector(-574.319651, -277.991089, 0)),
    Part.LineSegment(Vector(-574.319651, -277.991089, 0), Vector(-574.319651, -284.341089, 0)),
    Part.LineSegment(Vector(-421.903098, -284.341089, 0), Vector(-472.703098, -284.341089, 0)),
    Part.LineSegment(Vector(-472.703098, -284.341089, 0), Vector(-472.703098, -271.641089, 0)),
    Part.LineSegment(Vector(-472.703098, -271.641089, 0), Vector(-456.786791, -271.641089, 0)),
    Part.LineSegment(Vector(-456.786791, -271.641089, 0), Vector(-456.786791, -195.441626, 0)),
    Part.LineSegment(Vector(-456.786791, -195.441626, 0), Vector(-437.736791, -195.441626, 0)),
    Part.LineSegment(Vector(-437.736791, -195.441626, 0), Vector(-437.736791, -271.641089, 0)),
    Part.LineSegment(Vector(-437.736791, -271.641089, 0), Vector(-421.903098, -271.641089, 0)),
    Part.LineSegment(Vector(-421.903098, -271.641089, 0), Vector(-421.903098, -284.341089, 0)),
    Part.Circle(Vector(-523.511375, -150.991089, 0), Vector(0, 0, 1), 6.3627),
    Part.LineSegment(Vector(-609.285958, -30.341089, 0), Vector(-625.119651, -30.341089, 0)),
    Part.LineSegment(Vector(-625.119651, -30.341089, 0), Vector(-625.119651, -17.641089, 0)),
    Part.LineSegment(Vector(-625.119651, -17.641089, 0), Vector(-574.319651, -17.641089, 0)),
    Part.LineSegment(Vector(-574.319651, -17.641089, 0), Vector(-574.319651, -30.341089, 0)),
    Part.LineSegment(Vector(-574.319651, -30.341089, 0), Vector(-590.235958, -30.341089, 0)),
    Part.LineSegment(Vector(-590.235958, -30.341089, 0), Vector(-590.235958, -106.540551, 0)),
    Part.LineSegment(Vector(-590.235958, -106.540551, 0), Vector(-609.285958, -106.540551, 0)),
    Part.LineSegment(Vector(-609.285958, -106.540551, 0), Vector(-609.285958, -30.341089, 0)),
    Part.LineSegment(Vector(-456.786791, -30.341089, 0), Vector(-472.703098, -30.341089, 0)),
    Part.LineSegment(Vector(-472.703098, -30.341089, 0), Vector(-472.703098, -17.641089, 0)),
    Part.LineSegment(Vector(-472.703098, -17.641089, 0), Vector(-421.903098, -17.641089, 0)),
    Part.LineSegment(Vector(-421.903098, -17.641089, 0), Vector(-421.903098, -30.341089, 0)),
    Part.LineSegment(Vector(-421.903098, -30.341089, 0), Vector(-437.736791, -30.341089, 0)),
    Part.LineSegment(Vector(-437.736791, -30.341089, 0), Vector(-437.736791, -106.540551, 0)),
    Part.LineSegment(Vector(-437.736791, -106.540551, 0), Vector(-456.786791, -106.540551, 0)),
    Part.LineSegment(Vector(-456.786791, -106.540551, 0), Vector(-456.786791, -30.341089, 0)),
], False)
sketch4.addConstraint([
    Sketcher.Constraint("Coincident", 2, 2, 3, 1),
    Sketcher.Constraint("Coincident", 3, 2, 4, 1),
    Sketcher.Constraint("Coincident", 4, 2, 5, 1),
    Sketcher.Constraint("Coincident", 5, 2, 6, 1),
    Sketcher.Constraint("Coincident", 6, 2, 7, 1),
    Sketcher.Constraint("Coincident", 7, 2, 8, 1),
    Sketcher.Constraint("Coincident", 8, 2, 9, 1),
    Sketcher.Constraint("Coincident", 9, 2, 10, 1),
    Sketcher.Constraint("Coincident", 10, 2, 2, 1),
    Sketcher.Constraint("Coincident", 11, 2, 12, 1),
    Sketcher.Constraint("Coincident", 12, 2, 13, 1),
    Sketcher.Constraint("Coincident", 13, 2, 14, 1),
    Sketcher.Constraint("Coincident", 14, 2, 15, 1),
    Sketcher.Constraint("Coincident", 15, 2, 16, 1),
    Sketcher.Constraint("Coincident", 16, 2, 17, 1),
    Sketcher.Constraint("Coincident", 17, 2, 18, 1),
    Sketcher.Constraint("Coincident", 18, 2, 11, 1),
    Sketcher.Constraint("Coincident", 20, 2, 21, 1),
    Sketcher.Constraint("Coincident", 21, 2, 22, 1),
    Sketcher.Constraint("Coincident", 22, 2, 23, 1),
    Sketcher.Constraint("Coincident", 23, 2, 24, 1),
    Sketcher.Constraint("Coincident", 24, 2, 25, 1),
    Sketcher.Constraint("Coincident", 25, 2, 26, 1),
    Sketcher.Constraint("Coincident", 26, 2, 27, 1),
    Sketcher.Constraint("Coincident", 27, 2, 20, 1),
    Sketcher.Constraint("Coincident", 28, 2, 29, 1),
    Sketcher.Constraint("Coincident", 29, 2, 30, 1),
    Sketcher.Constraint("Coincident", 30, 2, 31, 1),
    Sketcher.Constraint("Coincident", 31, 2, 32, 1),
    Sketcher.Constraint("Coincident", 32, 2, 33, 1),
    Sketcher.Constraint("Coincident", 33, 2, 34, 1),
    Sketcher.Constraint("Coincident", 34, 2, 35, 1),
    Sketcher.Constraint("Coincident", 35, 2, 28, 1),
    Sketcher.Constraint("Horizontal", 2),
    Sketcher.Constraint("Vertical", 3),
    Sketcher.Constraint("Horizontal", 4),
    Sketcher.Constraint("Vertical", 5),
    Sketcher.Constraint("Horizontal", 6),
    Sketcher.Constraint("Vertical", 7),
    Sketcher.Constraint("Horizontal", 8),
    Sketcher.Constraint("Vertical", 10),
    Sketcher.Constraint("Horizontal", 11),
    Sketcher.Constraint("Vertical", 12),
    Sketcher.Constraint("Horizontal", 13),
    Sketcher.Constraint("Vertical", 14),
    Sketcher.Constraint("Horizontal", 15),
    Sketcher.Constraint("Vertical", 16),
    Sketcher.Constraint("Horizontal", 17),
    Sketcher.Constraint("Vertical", 18),
    Sketcher.Constraint("Horizontal", 20),
    Sketcher.Constraint("Vertical", 21),
    Sketcher.Constraint("Horizontal", 22),
    Sketcher.Constraint("Vertical", 23),
    Sketcher.Constraint("Horizontal", 24),
    Sketcher.Constraint("Vertical", 25),
    Sketcher.Constraint("Horizontal", 26),
    Sketcher.Constraint("Vertical", 27),
    Sketcher.Constraint("Horizontal", 28),
    Sketcher.Constraint("Vertical", 29),
    Sketcher.Constraint("Horizontal", 30),
    Sketcher.Constraint("Vertical", 31),
    Sketcher.Constraint("Horizontal", 32),
    Sketcher.Constraint("Vertical", 33),
    Sketcher.Constraint("Horizontal", 34),
    Sketcher.Constraint("Vertical", 35),
    Sketcher.Constraint("Coincident", 19, 3, 0, 3),
    Sketcher.Constraint("Horizontal", 4, 2, 7, 2),
    Sketcher.Constraint("Horizontal", 10, 2, 11, 2),
    Sketcher.Constraint("Horizontal", 6, 2, 14, 2),
    Sketcher.Constraint("Horizontal", 13, 2, 16, 2),
    Sketcher.Constraint("Horizontal", 20, 2, 23, 2),
    Sketcher.Constraint("Horizontal", 27, 2, 28, 2),
    Sketcher.Constraint("Horizontal", 22, 2, 29, 2),
    Sketcher.Constraint("Horizontal", 28, 2, 31, 2),
    Sketcher.Constraint("Horizontal", 26, 2, 33, 2),
    Sketcher.Constraint("Vertical", 0, 3, 1, 3),
    Sketcher.Constraint("Vertical", 3, 2, 20, 2),
    Sketcher.Constraint("Vertical", 10, 2, 22, 2),
    Sketcher.Constraint("Vertical", 7, 2, 24, 2),
    Sketcher.Constraint("Vertical", 5, 2, 26, 2),
    Sketcher.Constraint("Vertical", 12, 2, 28, 2),
    Sketcher.Constraint("Vertical", 18, 2, 30, 2),
    Sketcher.Constraint("Vertical", 16, 2, 32, 2),
    Sketcher.Constraint("Vertical", 14, 2, 34, 2),
    Sketcher.Constraint("Equal", 4, 8),
    Sketcher.Constraint("Equal", 2, 11),
    Sketcher.Constraint("Equal", 6, 15),
    Sketcher.Constraint("Equal", 8, 17),
    Sketcher.Constraint("Equal", 18, 21),
    Sketcher.Constraint("Equal", 16, 25),
    Sketcher.Constraint("Diameter", 1, Q("0.75 in")),
    Sketcher.Constraint("DistanceX", 2, 2, 2, 1, Q("2 in")),
    Sketcher.Constraint("DistanceY", 5, 1, 5, 2, Q("3 in")),
    Sketcher.Constraint("Diameter", 0, Q("15.621 in")),
    Sketcher.Constraint("Diameter", 19, Q("0.501 in")),
    Sketcher.Constraint("DistanceY", 12, 1, 12, 2, Q("0.5 in")),
    Sketcher.Constraint("DistanceX", 6, 1, 6, 2, Q("0.75 in")),
    Sketcher.Constraint("DistanceY", 10, 2, 10, 1, Q("0.25 in")),
    Sketcher.Constraint("Distance", 9, Q("0.25 in")),
    Sketcher.Constraint("DistanceY", 2, 2, 0, 3, Q("5.25 in")),
    Sketcher.Constraint("DistanceY", 0, 3, 20, 2, Q("4.75 in")),
    Sketcher.Constraint("DistanceY", 1, 3, 0, 3, Q("6.8105 in")),
    Sketcher.Constraint("DistanceX", 11, 2, -1, 1, 472.703098),
    Sketcher.Constraint("DistanceX", 4, 1, 4, 2, 15.833693),
    Sketcher.Constraint("DistanceY", 0, 3, -1, 1, 150.991089),
    Sketcher.Constraint("DistanceX", 2, 2, -1, 1, 625.119651),
    Sketcher.Constraint("DistanceX", 8, 2, 1, 3, 50.89089),
])
pad4 = body4.newObject("PartDesign::Pad", "Pad003")
pad4.Profile = sketch4
pad4.Length = Q("0.75 in")
body5 = doc.addObject("PartDesign::Body", "Body004")

sketch5 = body5.newObject("Sketcher::SketchObject", "Sketch004")
sketch5.AttachmentSupport = (doc.getObject("XZ_Plane004"), [""])
sketch5.MapMode = "FlatFace"
sketch5.addGeometry([
    Part.LineSegment(Vector(768.681407, 213.865575, 0), Vector(768.681407, -268.734425, 0)),
    Part.LineSegment(Vector(768.681407, -268.734425, 0), Vector(1352.881407, -268.734425, 0)),
    Part.LineSegment(Vector(1352.881407, -268.734425, 0), Vector(1352.881407, 213.865575, 0)),
    Part.LineSegment(Vector(1352.881407, 213.865575, 0), Vector(768.681407, 213.865575, 0)),
    Part.Circle(Vector(940.980239, -158.843561, 0), Vector(0, 0, 1), 9.525),
    Part.Circle(Vector(993.009011, -188.882387, 0), Vector(0, 0, 1), 9.525),
    Part.Circle(Vector(902.36307, -112.821411, 0), Vector(0, 0, 1), 9.525),
    Part.Circle(Vector(881.815303, -56.366886, 0), Vector(0, 0, 1), 9.525),
    Part.Circle(Vector(1052.173947, -199.314761, 0), Vector(0, 0, 1), 9.525),
    Part.Circle(Vector(1111.338883, -188.882387, 0), Vector(0, 0, 1), 9.525),
    Part.Circle(Vector(1163.367654, -158.843561, 0), Vector(0, 0, 1), 9.525),
    Part.Circle(Vector(1201.984823, -112.821411, 0), Vector(0, 0, 1), 9.525),
    Part.Circle(Vector(1222.53259, -56.366886, 0), Vector(0, 0, 1), 9.525),
    Part.Circle(Vector(881.815303, 3.710764, 0), Vector(0, 0, 1), 9.525),
    Part.Circle(Vector(902.36307, 60.165289, 0), Vector(0, 0, 1), 9.525),
    Part.Circle(Vector(940.980239, 106.187439, 0), Vector(0, 0, 1), 9.525),
    Part.Circle(Vector(993.009011, 136.226264, 0), Vector(0, 0, 1), 9.525),
    Part.Circle(Vector(1052.173947, -26.328061, 0), Vector(0, 0, 1), 6.3627),
    Part.Circle(Vector(1222.53259, 3.710764, 0), Vector(0, 0, 1), 9.525),
    Part.Circle(Vector(1201.984823, 60.165289, 0), Vector(0, 0, 1), 9.525),
    Part.Circle(Vector(1052.173947, 146.658639, 0), Vector(0, 0, 1), 9.525),
    Part.Circle(Vector(1111.338883, 136.226264, 0), Vector(0, 0, 1), 9.525),
    Part.Circle(Vector(1163.367654, 106.187439, 0), Vector(0, 0, 1), 9.525),
], False)
sketch5.addConstraint([
    Sketcher.Constraint("Coincident", 0, 2, 1, 1),
    Sketcher.Constraint("Coincident", 1, 2, 2, 1),
    Sketcher.Constraint("Coincident", 2, 2, 3, 1),
    Sketcher.Constraint("Coincident", 3, 2, 0, 1),
    Sketcher.Constraint("Vertical", 0),
    Sketcher.Constraint("Horizontal", 1),
    Sketcher.Constraint("Vertical", 2),
    Sketcher.Constraint("Horizontal", 3),
    Sketcher.Constraint("Equal", 4, 5),
    Sketcher.Constraint("Equal", 5, 6),
    Sketcher.Constraint("Equal", 6, 7),
    Sketcher.Constraint("Equal", 7, 8),
    Sketcher.Constraint("Equal", 8, 9),
    Sketcher.Constraint("Equal", 9, 10),
    Sketcher.Constraint("Equal", 10, 11),
    Sketcher.Constraint("Equal", 11, 12),
    Sketcher.Constraint("Equal", 12, 13),
    Sketcher.Constraint("Equal", 13, 14),
    Sketcher.Constraint("Equal", 14, 15),
    Sketcher.Constraint("Equal", 15, 16),
    Sketcher.Constraint("Equal", 16, 18),
    Sketcher.Constraint("Equal", 18, 19),
    Sketcher.Constraint("Equal", 19, 20),
    Sketcher.Constraint("Equal", 20, 21),
    Sketcher.Constraint("Equal", 21, 22),
    Sketcher.Constraint("Horizontal", 5, 3, 9, 3),
    Sketcher.Constraint("Horizontal", 4, 3, 10, 3),
    Sketcher.Constraint("Horizontal", 6, 3, 11, 3),
    Sketcher.Constraint("Horizontal", 7, 3, 12, 3),
    Sketcher.Constraint("Horizontal", 13, 3, 18, 3),
    Sketcher.Constraint("Horizontal", 14, 3, 19, 3),
    Sketcher.Constraint("Horizontal", 16, 3, 21, 3),
    Sketcher.Constraint("Horizontal", 15, 3, 22, 3),
    Sketcher.Constraint("Vertical", 7, 3, 13, 3),
    Sketcher.Constraint("Vertical", 6, 3, 14, 3),
    Sketcher.Constraint("Vertical", 4, 3, 15, 3),
    Sketcher.Constraint("Vertical", 5, 3, 16, 3),
    Sketcher.Constraint("Vertical", 8, 3, 17, 3),
    Sketcher.Constraint("Vertical", 12, 3, 18, 3),
    Sketcher.Constraint("Vertical", 11, 3, 19, 3),
    Sketcher.Constraint("Vertical", 17, 3, 20, 3),
    Sketcher.Constraint("Vertical", 9, 3, 21, 3),
    Sketcher.Constraint("Vertical", 10, 3, 22, 3),
    Sketcher.Constraint("Diameter", 4, Q("0.75 in")),
    Sketcher.Constraint("DistanceX", 1, 1, 1, 2, Q("23 in")),
    Sketcher.Constraint("DistanceY", 0, 2, 0, 1, Q("19 in")),
    Sketcher.Constraint("Diameter", 17, Q("0.501 in")),
    Sketcher.Constraint("DistanceY", 6, 3, 14, 3, Q("6.8105 in")),
    Sketcher.Constraint("DistanceY", 17, 3, 20, 3, Q("6.8105 in")),
    Sketcher.Constraint("DistanceY", 5, 3, 7, 3, 132.5155),
    Sketcher.Constraint("DistanceY", 8, 3, 4, 3, 40.4712),
    Sketcher.Constraint("DistanceY", 4, 3, 15, 3, 265.031001),
    Sketcher.Constraint("DistanceY", 13, 3, 16, 3, 132.5155),
    Sketcher.Constraint("DistanceY", 10, 3, 17, 3, 132.5155),
    Sketcher.Constraint("DistanceX", -1, 1, 4, 3, 940.980239),
    Sketcher.Constraint("DistanceY", 4, 3, -1, 1, 158.843561),
    Sketcher.Constraint("DistanceX", -1, 1, 5, 3, 993.009011),
    Sketcher.Constraint("DistanceX", -1, 1, 6, 3, 902.36307),
    Sketcher.Constraint("DistanceY", 6, 3, -1, 1, 112.821411),
    Sketcher.Constraint("DistanceX", -1, 1, 12, 3, 1222.53259),
    Sketcher.Constraint("DistanceX", 5, 3, 9, 3, 118.329872),
    Sketcher.Constraint("DistanceX", 7, 3, 9, 3, 229.523579),
    Sketcher.Constraint("DistanceX", 9, 3, 10, 3, 52.028771),
    Sketcher.Constraint("DistanceX", 10, 3, 11, 3, 38.617169),
    Sketcher.Constraint("DistanceY", 7, 3, 13, 3, 60.07765),
    Sketcher.Constraint("DistanceY", 0, 2, 5, 3, 79.852039),
    Sketcher.Constraint("DistanceX", 0, 2, 8, 3, 283.49254),
    Sketcher.Constraint("DistanceY", 5, 3, -1, 1, 188.882387),
    Sketcher.Constraint("DistanceX", -1, 1, 8, 3, 1052.173947),
])
pad5 = body5.newObject("PartDesign::Pad", "Pad004")
pad5.Profile = sketch5
pad5.Length = Q("0.75 in")

doc.recompute()
